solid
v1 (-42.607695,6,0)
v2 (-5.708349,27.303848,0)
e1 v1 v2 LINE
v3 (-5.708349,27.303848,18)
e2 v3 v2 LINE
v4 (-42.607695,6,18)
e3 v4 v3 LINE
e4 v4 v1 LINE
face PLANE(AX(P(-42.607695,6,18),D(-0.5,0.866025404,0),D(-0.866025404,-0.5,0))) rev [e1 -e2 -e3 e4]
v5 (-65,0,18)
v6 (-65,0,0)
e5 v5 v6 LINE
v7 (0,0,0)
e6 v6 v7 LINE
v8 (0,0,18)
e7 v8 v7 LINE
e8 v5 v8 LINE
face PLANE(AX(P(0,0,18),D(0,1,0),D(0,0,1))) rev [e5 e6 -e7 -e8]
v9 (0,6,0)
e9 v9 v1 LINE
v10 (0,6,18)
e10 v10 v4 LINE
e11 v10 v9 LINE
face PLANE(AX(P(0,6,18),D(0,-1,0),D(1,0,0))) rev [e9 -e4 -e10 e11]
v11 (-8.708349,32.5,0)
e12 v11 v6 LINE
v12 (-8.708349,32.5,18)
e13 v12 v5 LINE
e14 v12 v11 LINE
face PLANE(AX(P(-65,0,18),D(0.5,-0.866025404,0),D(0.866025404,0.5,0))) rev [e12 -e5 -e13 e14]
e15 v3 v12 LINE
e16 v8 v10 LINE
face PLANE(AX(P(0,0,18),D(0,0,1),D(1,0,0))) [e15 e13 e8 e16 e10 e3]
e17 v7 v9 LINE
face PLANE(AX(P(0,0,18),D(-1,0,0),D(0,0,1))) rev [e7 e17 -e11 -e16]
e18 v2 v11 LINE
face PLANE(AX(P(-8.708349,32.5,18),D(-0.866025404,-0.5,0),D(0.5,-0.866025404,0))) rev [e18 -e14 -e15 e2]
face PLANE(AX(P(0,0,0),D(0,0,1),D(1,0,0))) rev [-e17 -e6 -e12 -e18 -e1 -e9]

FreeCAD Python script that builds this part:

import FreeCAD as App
import Part
import Sketcher
from FreeCAD import Vector
Q = App.Units.Quantity

doc = App.newDocument("Part")
body = doc.addObject("PartDesign::Body", "Body")

# Sketch on XY plane
sketch1 = body.newObject("Sketcher::SketchObject", "Sketch")
sketch1.AttachmentSupport = (doc.getObject("XY_Plane"), [""])
sketch1.MapMode = "FlatFace"
sketch1.addGeometry([
    Part.LineSegment(Vector(-65, 0, 0), Vector(0, 0, 0)),  # 0
    Part.LineSegment(Vector(0, 0, 0), Vector(0, 6, 0)),  # 1
    Part.LineSegment(Vector(0, 6, 0), Vector(-42.607695, 6, 0)),  # 2
    Part.LineSegment(Vector(-42.607695, 6, 0), Vector(-5.708349, 27.303848, 0)),  # 3
    Part.LineSegment(Vector(-5.708349, 27.303848, 0), Vector(-8.708349, 32.5, 0)),  # 4
    Part.LineSegment(Vector(-8.708349, 32.5, 0), Vector(-65, 0, 0)),  # 5
], False)
sketch1.addConstraint([
    Sketcher.Constraint("Coincident", 0, 2, 1, 1),
    Sketcher.Constraint("Coincident", 1, 2, 2, 1),
    Sketcher.Constraint("Coincident", 2, 2, 3, 1),
    Sketcher.Constraint("Coincident", 3, 2, 4, 1),
    Sketcher.Constraint("Coincident", 4, 2, 5, 1),
    Sketcher.Constraint("Coincident", 5, 2, 0, 1),
    Sketcher.Constraint("Horizontal", 0),
    Sketcher.Constraint("Vertical", 1),
    Sketcher.Constraint("Horizontal", 2),
    Sketcher.Constraint("Coincident", 0, 2, -1, 1),
    Sketcher.Constraint("Perpendicular", 3, 4),
    Sketcher.Constraint("Perpendicular", 4, 5),
    Sketcher.Constraint("DistanceX", 0, 1, 0, 2, 65.0),
    Sketcher.Constraint("DistanceY", 1, 1, 1, 2, 6.0),
    Sketcher.Constraint("Angle", 3, Q("30 deg")),
    Sketcher.Constraint("Distance", 4, 6.0),
    Sketcher.Constraint("Distance", 5, 65.0),
])
pad1 = body.newObject("PartDesign::Pad", "Pad")
pad1.Profile = sketch1
pad1.Length = 18

doc.recompute()
